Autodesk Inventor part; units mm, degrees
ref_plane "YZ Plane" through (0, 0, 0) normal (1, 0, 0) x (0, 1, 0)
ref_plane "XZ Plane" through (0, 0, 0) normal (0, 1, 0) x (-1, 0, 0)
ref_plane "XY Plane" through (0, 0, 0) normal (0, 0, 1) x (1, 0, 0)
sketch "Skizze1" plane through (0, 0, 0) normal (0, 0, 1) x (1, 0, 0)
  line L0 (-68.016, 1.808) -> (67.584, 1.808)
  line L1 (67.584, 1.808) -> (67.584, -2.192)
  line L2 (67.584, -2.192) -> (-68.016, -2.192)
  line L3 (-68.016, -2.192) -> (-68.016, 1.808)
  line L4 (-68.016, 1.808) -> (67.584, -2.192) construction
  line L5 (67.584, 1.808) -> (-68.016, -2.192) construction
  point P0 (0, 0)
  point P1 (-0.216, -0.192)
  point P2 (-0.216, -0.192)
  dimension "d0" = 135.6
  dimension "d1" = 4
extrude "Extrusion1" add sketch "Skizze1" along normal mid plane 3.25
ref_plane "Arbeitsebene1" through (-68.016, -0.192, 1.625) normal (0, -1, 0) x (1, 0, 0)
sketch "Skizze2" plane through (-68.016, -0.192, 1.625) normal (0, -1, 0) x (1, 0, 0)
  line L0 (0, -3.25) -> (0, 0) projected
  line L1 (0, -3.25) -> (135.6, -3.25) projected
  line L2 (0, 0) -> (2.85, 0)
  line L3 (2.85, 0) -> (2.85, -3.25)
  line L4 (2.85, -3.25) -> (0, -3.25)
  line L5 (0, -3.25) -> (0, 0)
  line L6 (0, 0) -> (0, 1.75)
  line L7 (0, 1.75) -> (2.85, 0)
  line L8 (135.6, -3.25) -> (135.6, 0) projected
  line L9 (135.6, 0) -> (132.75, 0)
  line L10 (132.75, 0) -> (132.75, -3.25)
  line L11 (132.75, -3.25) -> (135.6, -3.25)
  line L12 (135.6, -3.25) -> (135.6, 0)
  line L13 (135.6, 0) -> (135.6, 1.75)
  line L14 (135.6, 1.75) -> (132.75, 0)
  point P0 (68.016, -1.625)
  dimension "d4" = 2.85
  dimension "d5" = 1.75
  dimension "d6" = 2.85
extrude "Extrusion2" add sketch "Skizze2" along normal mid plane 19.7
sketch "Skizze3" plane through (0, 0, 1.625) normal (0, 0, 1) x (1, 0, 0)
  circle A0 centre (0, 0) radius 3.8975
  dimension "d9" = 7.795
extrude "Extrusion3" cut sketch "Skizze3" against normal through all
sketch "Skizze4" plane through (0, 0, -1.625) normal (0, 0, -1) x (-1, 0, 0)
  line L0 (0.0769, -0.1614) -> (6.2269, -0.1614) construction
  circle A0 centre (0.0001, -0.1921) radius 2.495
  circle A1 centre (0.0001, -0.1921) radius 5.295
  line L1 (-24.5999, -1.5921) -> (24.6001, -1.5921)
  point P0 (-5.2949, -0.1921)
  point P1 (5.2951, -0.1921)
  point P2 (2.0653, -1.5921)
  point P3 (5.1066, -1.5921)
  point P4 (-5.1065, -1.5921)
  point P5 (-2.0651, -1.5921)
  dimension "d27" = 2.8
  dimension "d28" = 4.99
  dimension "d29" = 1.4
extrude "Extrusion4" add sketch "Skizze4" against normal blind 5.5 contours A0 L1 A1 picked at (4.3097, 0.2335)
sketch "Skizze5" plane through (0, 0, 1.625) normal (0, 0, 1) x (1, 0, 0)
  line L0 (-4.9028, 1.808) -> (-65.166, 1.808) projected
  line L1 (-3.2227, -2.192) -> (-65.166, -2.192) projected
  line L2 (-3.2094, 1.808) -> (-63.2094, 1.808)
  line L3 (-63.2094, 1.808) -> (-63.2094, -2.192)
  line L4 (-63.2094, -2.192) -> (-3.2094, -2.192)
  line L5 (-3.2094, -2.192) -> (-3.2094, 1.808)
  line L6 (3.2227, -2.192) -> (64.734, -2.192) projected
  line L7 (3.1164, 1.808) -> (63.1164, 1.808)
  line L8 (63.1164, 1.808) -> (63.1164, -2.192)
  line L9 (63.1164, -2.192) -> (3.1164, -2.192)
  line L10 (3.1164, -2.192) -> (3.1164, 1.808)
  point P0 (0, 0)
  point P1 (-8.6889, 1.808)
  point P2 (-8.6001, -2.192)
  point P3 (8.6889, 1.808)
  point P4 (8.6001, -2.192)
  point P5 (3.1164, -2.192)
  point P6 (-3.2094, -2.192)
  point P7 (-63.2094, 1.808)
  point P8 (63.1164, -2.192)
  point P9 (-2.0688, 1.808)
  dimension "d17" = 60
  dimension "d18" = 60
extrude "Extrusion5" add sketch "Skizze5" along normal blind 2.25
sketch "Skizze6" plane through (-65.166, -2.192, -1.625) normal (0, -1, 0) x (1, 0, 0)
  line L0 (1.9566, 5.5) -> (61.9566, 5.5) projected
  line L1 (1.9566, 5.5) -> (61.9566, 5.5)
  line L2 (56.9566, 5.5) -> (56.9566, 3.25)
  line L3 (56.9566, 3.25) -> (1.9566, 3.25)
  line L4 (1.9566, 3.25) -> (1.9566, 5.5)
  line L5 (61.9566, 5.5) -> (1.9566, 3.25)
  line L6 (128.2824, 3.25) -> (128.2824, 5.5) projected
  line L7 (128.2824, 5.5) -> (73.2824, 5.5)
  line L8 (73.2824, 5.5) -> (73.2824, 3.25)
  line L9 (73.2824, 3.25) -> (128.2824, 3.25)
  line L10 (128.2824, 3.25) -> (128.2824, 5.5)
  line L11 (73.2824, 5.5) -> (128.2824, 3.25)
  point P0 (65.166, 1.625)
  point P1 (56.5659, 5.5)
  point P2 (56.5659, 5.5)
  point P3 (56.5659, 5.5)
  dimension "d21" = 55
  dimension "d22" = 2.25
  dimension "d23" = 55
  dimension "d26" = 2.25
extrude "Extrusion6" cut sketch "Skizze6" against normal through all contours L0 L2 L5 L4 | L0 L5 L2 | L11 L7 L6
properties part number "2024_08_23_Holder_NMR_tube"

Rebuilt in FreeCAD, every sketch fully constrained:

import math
import FreeCAD as App
import Part
import Sketcher

V = App.Vector


def add_polygon(sketch, points):
    """Adds a closed chain of lines whose ends are joined by coincident constraints."""
    first, n = sketch.GeometryCount, len(points)
    for a, b in zip(points, points[1:] + points[:1]):
        sketch.addGeometry(Part.LineSegment(App.Vector(*a, 0), App.Vector(*b, 0)), False)
    for i in range(n):
        sketch.addConstraint(Sketcher.Constraint("Coincident", first + i, 2, first + (i + 1) % n, 1))

doc = App.newDocument("Part")
body = doc.addObject("PartDesign::Body", "Body")
body.AllowCompound = True

# Sketch on XY plane
sketch1 = body.newObject("Sketcher::SketchObject", "Sketch")
sketch1.AttachmentSupport = (doc.getObject("XY_Plane"), [""])
sketch1.MapMode = "FlatFace"
add_polygon(sketch1, [(67.6, 1.8), (-68, 1.8), (-68, -2.2), (67.6, -2.2)])  # lines 0-3
sketch1.addConstraint(Sketcher.Constraint("Horizontal", 0))
sketch1.addConstraint(Sketcher.Constraint("Vertical", 1))
sketch1.addConstraint(Sketcher.Constraint("Horizontal", 2))
sketch1.addConstraint(Sketcher.Constraint("Vertical", 3))
sketch1.addConstraint(Sketcher.Constraint("DistanceY", 1, 2, 1, 1, 4.0))
sketch1.addConstraint(Sketcher.Constraint("DistanceX", 0, 2, 0, 1, 135.6))
sketch1.addConstraint(Sketcher.Constraint("DistanceX", 0, 2, -1, 1, 68.016))
sketch1.addConstraint(Sketcher.Constraint("DistanceY", -1, 1, 0, 2, 1.808))
pad1 = body.newObject("PartDesign::Pad", "Pad")
pad1.Profile = sketch1
pad1.Length = 3.25
pad1.Midplane = True

# Sketch on XZ plane
sketch2 = body.newObject("Sketcher::SketchObject", "Sketch001")
sketch2.AttachmentSupport = (doc.getObject("XZ_Plane"), [""])
sketch2.MapMode = "FlatFace"
sketch2.AttachmentOffset = App.Placement(V(0, 0, 0.192), App.Rotation())
add_polygon(sketch2, [(64.7, 1.6), (64.7, -1.6), (67.6, -1.6), (67.6, 3.4)])  # lines 0-3
add_polygon(sketch2, [(-68, -1.6), (-65.2, -1.6), (-65.2, 1.6), (-68, 3.4)])  # lines 4-7
sketch2.addConstraint(Sketcher.Constraint("Vertical", 0))
sketch2.addConstraint(Sketcher.Constraint("Horizontal", 1))
sketch2.addConstraint(Sketcher.Constraint("Vertical", 2))
sketch2.addConstraint(Sketcher.Constraint("Horizontal", 4))
sketch2.addConstraint(Sketcher.Constraint("Vertical", 5))
sketch2.addConstraint(Sketcher.Constraint("Vertical", 7))
sketch2.addConstraint(Sketcher.Constraint("Horizontal", 1, 2, 4, 2))
sketch2.addConstraint(Sketcher.Constraint("Horizontal", 3, 2, 5, 2))
sketch2.addConstraint(Sketcher.Constraint("Horizontal", 2, 2, 6, 2))
sketch2.addConstraint(Sketcher.Constraint("Equal", 1, 4))
sketch2.addConstraint(Sketcher.Constraint("DistanceX", 1, 1, 1, 2, 2.85))
sketch2.addConstraint(Sketcher.Constraint("DistanceY", 2, 1, 2, 2, 5.0))
sketch2.addConstraint(Sketcher.Constraint("DistanceY", 3, 2, 2, 2, 1.75))
sketch2.addConstraint(Sketcher.Constraint("DistanceX", 4, 2, 0, 2, 129.9))
sketch2.addConstraint(Sketcher.Constraint("DistanceX", -1, 1, 0, 2, 64.734))
sketch2.addConstraint(Sketcher.Constraint("DistanceY", 0, 2, -1, 1, 1.625))
pad2 = body.newObject("PartDesign::Pad", "Pad001")
pad2.Profile = sketch2
pad2.Length = 19.7
pad2.Midplane = True

# Sketch on XY plane
sketch3 = body.newObject("Sketcher::SketchObject", "Sketch002")
sketch3.AttachmentSupport = (doc.getObject("XY_Plane"), [""])
sketch3.MapMode = "FlatFace"
sketch3.AttachmentOffset = App.Placement(V(0, 0, 1.625), App.Rotation())
sketch3.addGeometry(Part.Circle(V(0, 0, 0), V(0, 0, 1), 3.9), False)
sketch3.addConstraint(Sketcher.Constraint("Coincident", 0, 3, -1, 1))
sketch3.addConstraint(Sketcher.Constraint("Diameter", 0, 7.795))
pocket1 = body.newObject("PartDesign::Pocket", "Pocket")
pocket1.Profile = sketch3
pocket1.Type = "ThroughAll"

# Sketch on XY plane
sketch4 = body.newObject("Sketcher::SketchObject", "Sketch003")
sketch4.AttachmentSupport = (doc.getObject("XY_Plane"), [""])
sketch4.MapMode = "FlatFace"
sketch4.AttachmentOffset = App.Placement(V(0, 0, -1.625), App.Rotation())
sketch4.addGeometry(Part.ArcOfCircle(Part.Circle(V(0, -0.2, 0), V(0, 0, 1), 2.5), math.radians(-34), math.radians(214)), False)
sketch4.addGeometry(Part.LineSegment(V(-2.1, -1.6, 0), V(-5.1, -1.6, 0)), False)
sketch4.addGeometry(Part.ArcOfCircle(Part.Circle(V(0, -0.2, 0), V(0, 0, 1), 5.3), math.radians(-15), math.radians(195)), False)
sketch4.addGeometry(Part.LineSegment(V(5.1, -1.6, 0), V(2.1, -1.6, 0)), False)
sketch4.addConstraint(Sketcher.Constraint("Coincident", 0, 2, 1, 1))
sketch4.addConstraint(Sketcher.Constraint("Coincident", 1, 2, 2, 2))
sketch4.addConstraint(Sketcher.Constraint("Coincident", 2, 1, 3, 1))
sketch4.addConstraint(Sketcher.Constraint("Coincident", 3, 2, 0, 1))
sketch4.addConstraint(Sketcher.Constraint("Horizontal", 1))
sketch4.addConstraint(Sketcher.Constraint("Horizontal", 3))
sketch4.addConstraint(Sketcher.Constraint("Coincident", 2, 3, 0, 3))
sketch4.addConstraint(Sketcher.Constraint("Symmetric", 1, 2, 2, 1, -2))
sketch4.addConstraint(Sketcher.Constraint("Radius", 0, 2.495))
sketch4.addConstraint(Sketcher.Constraint("DistanceY", 0, 2, 0, 3, 1.4))
sketch4.addConstraint(Sketcher.Constraint("Radius", 2, 5.295))
sketch4.addConstraint(Sketcher.Constraint("DistanceY", 0, 3, -1, 1, 0.192))
pad3 = body.newObject("PartDesign::Pad", "Pad002")
pad3.Profile = sketch4
pad3.Length = 5.5

# Sketch on XY plane
sketch5 = body.newObject("Sketcher::SketchObject", "Sketch004")
sketch5.AttachmentSupport = (doc.getObject("XY_Plane"), [""])
sketch5.MapMode = "FlatFace"
sketch5.AttachmentOffset = App.Placement(V(0, 0, 1.625), App.Rotation())
add_polygon(sketch5, [(-3.2, 1.8), (-63.2, 1.8), (-63.2, -2.2), (-3.2, -2.2)])  # lines 0-3
add_polygon(sketch5, [(3.1, -2.2), (63.1, -2.2), (63.1, 1.8), (3.1, 1.8)])  # lines 4-7
sketch5.addConstraint(Sketcher.Constraint("Horizontal", 0))
sketch5.addConstraint(Sketcher.Constraint("Vertical", 1))
sketch5.addConstraint(Sketcher.Constraint("Horizontal", 2))
sketch5.addConstraint(Sketcher.Constraint("Vertical", 3))
sketch5.addConstraint(Sketcher.Constraint("Horizontal", 4))
sketch5.addConstraint(Sketcher.Constraint("Vertical", 5))
sketch5.addConstraint(Sketcher.Constraint("Horizontal", 6))
sketch5.addConstraint(Sketcher.Constraint("Vertical", 7))
sketch5.addConstraint(Sketcher.Constraint("Horizontal", 2, 2, 4, 2))
sketch5.addConstraint(Sketcher.Constraint("Horizontal", 3, 2, 5, 2))
sketch5.addConstraint(Sketcher.Constraint("Equal", 2, 4))
sketch5.addConstraint(Sketcher.Constraint("DistanceX", 0, 2, 0, 1, 60.0))
sketch5.addConstraint(Sketcher.Constraint("DistanceY", 1, 2, 1, 1, 4.0))
sketch5.addConstraint(Sketcher.Constraint("DistanceY", -1, 1, 0, 2, 1.808))
sketch5.addConstraint(Sketcher.Constraint("DistanceX", 0, 2, -1, 1, 63.2094))
sketch5.addConstraint(Sketcher.Constraint("DistanceX", -1, 1, 4, 2, 63.1164))
pad4 = body.newObject("PartDesign::Pad", "Pad003")
pad4.Profile = sketch5
pad4.Length = 2.25

# Sketch on XZ plane
sketch6 = body.newObject("Sketcher::SketchObject", "Sketch005")
sketch6.AttachmentSupport = (doc.getObject("XZ_Plane"), [""])
sketch6.MapMode = "FlatFace"
sketch6.AttachmentOffset = App.Placement(V(0, 0, 2.192), App.Rotation())
add_polygon(sketch6, [(-63.2, 3.9), (-63.2, 1.6), (-3.2, 3.9)])  # lines 0-2
add_polygon(sketch6, [(8.1, 3.9), (63.1, 1.6), (63.1, 3.9)])  # lines 3-5
sketch6.addConstraint(Sketcher.Constraint("Vertical", 0))
sketch6.addConstraint(Sketcher.Constraint("Horizontal", 2))
sketch6.addConstraint(Sketcher.Constraint("Vertical", 4))
sketch6.addConstraint(Sketcher.Constraint("Horizontal", 5))
sketch6.addConstraint(Sketcher.Constraint("Horizontal", 0, 2, 3, 2))
sketch6.addConstraint(Sketcher.Constraint("Horizontal", 2, 2, 4, 2))
sketch6.addConstraint(Sketcher.Constraint("DistanceX", 5, 2, 5, 1, 55.0))
sketch6.addConstraint(Sketcher.Constraint("DistanceY", 0, 2, 0, 1, 2.25))
sketch6.addConstraint(Sketcher.Constraint("DistanceX", 2, 2, 2, 1, 60.0))
sketch6.addConstraint(Sketcher.Constraint("DistanceY", -1, 1, 0, 2, 1.625))
sketch6.addConstraint(Sketcher.Constraint("DistanceX", 0, 2, -1, 1, 63.2094))
sketch6.addConstraint(Sketcher.Constraint("DistanceX", -1, 1, 3, 2, 63.1164))
pocket2 = body.newObject("PartDesign::Pocket", "Pocket001")
pocket2.Profile = sketch6
pocket2.Type = "ThroughAll"

doc.recompute()
